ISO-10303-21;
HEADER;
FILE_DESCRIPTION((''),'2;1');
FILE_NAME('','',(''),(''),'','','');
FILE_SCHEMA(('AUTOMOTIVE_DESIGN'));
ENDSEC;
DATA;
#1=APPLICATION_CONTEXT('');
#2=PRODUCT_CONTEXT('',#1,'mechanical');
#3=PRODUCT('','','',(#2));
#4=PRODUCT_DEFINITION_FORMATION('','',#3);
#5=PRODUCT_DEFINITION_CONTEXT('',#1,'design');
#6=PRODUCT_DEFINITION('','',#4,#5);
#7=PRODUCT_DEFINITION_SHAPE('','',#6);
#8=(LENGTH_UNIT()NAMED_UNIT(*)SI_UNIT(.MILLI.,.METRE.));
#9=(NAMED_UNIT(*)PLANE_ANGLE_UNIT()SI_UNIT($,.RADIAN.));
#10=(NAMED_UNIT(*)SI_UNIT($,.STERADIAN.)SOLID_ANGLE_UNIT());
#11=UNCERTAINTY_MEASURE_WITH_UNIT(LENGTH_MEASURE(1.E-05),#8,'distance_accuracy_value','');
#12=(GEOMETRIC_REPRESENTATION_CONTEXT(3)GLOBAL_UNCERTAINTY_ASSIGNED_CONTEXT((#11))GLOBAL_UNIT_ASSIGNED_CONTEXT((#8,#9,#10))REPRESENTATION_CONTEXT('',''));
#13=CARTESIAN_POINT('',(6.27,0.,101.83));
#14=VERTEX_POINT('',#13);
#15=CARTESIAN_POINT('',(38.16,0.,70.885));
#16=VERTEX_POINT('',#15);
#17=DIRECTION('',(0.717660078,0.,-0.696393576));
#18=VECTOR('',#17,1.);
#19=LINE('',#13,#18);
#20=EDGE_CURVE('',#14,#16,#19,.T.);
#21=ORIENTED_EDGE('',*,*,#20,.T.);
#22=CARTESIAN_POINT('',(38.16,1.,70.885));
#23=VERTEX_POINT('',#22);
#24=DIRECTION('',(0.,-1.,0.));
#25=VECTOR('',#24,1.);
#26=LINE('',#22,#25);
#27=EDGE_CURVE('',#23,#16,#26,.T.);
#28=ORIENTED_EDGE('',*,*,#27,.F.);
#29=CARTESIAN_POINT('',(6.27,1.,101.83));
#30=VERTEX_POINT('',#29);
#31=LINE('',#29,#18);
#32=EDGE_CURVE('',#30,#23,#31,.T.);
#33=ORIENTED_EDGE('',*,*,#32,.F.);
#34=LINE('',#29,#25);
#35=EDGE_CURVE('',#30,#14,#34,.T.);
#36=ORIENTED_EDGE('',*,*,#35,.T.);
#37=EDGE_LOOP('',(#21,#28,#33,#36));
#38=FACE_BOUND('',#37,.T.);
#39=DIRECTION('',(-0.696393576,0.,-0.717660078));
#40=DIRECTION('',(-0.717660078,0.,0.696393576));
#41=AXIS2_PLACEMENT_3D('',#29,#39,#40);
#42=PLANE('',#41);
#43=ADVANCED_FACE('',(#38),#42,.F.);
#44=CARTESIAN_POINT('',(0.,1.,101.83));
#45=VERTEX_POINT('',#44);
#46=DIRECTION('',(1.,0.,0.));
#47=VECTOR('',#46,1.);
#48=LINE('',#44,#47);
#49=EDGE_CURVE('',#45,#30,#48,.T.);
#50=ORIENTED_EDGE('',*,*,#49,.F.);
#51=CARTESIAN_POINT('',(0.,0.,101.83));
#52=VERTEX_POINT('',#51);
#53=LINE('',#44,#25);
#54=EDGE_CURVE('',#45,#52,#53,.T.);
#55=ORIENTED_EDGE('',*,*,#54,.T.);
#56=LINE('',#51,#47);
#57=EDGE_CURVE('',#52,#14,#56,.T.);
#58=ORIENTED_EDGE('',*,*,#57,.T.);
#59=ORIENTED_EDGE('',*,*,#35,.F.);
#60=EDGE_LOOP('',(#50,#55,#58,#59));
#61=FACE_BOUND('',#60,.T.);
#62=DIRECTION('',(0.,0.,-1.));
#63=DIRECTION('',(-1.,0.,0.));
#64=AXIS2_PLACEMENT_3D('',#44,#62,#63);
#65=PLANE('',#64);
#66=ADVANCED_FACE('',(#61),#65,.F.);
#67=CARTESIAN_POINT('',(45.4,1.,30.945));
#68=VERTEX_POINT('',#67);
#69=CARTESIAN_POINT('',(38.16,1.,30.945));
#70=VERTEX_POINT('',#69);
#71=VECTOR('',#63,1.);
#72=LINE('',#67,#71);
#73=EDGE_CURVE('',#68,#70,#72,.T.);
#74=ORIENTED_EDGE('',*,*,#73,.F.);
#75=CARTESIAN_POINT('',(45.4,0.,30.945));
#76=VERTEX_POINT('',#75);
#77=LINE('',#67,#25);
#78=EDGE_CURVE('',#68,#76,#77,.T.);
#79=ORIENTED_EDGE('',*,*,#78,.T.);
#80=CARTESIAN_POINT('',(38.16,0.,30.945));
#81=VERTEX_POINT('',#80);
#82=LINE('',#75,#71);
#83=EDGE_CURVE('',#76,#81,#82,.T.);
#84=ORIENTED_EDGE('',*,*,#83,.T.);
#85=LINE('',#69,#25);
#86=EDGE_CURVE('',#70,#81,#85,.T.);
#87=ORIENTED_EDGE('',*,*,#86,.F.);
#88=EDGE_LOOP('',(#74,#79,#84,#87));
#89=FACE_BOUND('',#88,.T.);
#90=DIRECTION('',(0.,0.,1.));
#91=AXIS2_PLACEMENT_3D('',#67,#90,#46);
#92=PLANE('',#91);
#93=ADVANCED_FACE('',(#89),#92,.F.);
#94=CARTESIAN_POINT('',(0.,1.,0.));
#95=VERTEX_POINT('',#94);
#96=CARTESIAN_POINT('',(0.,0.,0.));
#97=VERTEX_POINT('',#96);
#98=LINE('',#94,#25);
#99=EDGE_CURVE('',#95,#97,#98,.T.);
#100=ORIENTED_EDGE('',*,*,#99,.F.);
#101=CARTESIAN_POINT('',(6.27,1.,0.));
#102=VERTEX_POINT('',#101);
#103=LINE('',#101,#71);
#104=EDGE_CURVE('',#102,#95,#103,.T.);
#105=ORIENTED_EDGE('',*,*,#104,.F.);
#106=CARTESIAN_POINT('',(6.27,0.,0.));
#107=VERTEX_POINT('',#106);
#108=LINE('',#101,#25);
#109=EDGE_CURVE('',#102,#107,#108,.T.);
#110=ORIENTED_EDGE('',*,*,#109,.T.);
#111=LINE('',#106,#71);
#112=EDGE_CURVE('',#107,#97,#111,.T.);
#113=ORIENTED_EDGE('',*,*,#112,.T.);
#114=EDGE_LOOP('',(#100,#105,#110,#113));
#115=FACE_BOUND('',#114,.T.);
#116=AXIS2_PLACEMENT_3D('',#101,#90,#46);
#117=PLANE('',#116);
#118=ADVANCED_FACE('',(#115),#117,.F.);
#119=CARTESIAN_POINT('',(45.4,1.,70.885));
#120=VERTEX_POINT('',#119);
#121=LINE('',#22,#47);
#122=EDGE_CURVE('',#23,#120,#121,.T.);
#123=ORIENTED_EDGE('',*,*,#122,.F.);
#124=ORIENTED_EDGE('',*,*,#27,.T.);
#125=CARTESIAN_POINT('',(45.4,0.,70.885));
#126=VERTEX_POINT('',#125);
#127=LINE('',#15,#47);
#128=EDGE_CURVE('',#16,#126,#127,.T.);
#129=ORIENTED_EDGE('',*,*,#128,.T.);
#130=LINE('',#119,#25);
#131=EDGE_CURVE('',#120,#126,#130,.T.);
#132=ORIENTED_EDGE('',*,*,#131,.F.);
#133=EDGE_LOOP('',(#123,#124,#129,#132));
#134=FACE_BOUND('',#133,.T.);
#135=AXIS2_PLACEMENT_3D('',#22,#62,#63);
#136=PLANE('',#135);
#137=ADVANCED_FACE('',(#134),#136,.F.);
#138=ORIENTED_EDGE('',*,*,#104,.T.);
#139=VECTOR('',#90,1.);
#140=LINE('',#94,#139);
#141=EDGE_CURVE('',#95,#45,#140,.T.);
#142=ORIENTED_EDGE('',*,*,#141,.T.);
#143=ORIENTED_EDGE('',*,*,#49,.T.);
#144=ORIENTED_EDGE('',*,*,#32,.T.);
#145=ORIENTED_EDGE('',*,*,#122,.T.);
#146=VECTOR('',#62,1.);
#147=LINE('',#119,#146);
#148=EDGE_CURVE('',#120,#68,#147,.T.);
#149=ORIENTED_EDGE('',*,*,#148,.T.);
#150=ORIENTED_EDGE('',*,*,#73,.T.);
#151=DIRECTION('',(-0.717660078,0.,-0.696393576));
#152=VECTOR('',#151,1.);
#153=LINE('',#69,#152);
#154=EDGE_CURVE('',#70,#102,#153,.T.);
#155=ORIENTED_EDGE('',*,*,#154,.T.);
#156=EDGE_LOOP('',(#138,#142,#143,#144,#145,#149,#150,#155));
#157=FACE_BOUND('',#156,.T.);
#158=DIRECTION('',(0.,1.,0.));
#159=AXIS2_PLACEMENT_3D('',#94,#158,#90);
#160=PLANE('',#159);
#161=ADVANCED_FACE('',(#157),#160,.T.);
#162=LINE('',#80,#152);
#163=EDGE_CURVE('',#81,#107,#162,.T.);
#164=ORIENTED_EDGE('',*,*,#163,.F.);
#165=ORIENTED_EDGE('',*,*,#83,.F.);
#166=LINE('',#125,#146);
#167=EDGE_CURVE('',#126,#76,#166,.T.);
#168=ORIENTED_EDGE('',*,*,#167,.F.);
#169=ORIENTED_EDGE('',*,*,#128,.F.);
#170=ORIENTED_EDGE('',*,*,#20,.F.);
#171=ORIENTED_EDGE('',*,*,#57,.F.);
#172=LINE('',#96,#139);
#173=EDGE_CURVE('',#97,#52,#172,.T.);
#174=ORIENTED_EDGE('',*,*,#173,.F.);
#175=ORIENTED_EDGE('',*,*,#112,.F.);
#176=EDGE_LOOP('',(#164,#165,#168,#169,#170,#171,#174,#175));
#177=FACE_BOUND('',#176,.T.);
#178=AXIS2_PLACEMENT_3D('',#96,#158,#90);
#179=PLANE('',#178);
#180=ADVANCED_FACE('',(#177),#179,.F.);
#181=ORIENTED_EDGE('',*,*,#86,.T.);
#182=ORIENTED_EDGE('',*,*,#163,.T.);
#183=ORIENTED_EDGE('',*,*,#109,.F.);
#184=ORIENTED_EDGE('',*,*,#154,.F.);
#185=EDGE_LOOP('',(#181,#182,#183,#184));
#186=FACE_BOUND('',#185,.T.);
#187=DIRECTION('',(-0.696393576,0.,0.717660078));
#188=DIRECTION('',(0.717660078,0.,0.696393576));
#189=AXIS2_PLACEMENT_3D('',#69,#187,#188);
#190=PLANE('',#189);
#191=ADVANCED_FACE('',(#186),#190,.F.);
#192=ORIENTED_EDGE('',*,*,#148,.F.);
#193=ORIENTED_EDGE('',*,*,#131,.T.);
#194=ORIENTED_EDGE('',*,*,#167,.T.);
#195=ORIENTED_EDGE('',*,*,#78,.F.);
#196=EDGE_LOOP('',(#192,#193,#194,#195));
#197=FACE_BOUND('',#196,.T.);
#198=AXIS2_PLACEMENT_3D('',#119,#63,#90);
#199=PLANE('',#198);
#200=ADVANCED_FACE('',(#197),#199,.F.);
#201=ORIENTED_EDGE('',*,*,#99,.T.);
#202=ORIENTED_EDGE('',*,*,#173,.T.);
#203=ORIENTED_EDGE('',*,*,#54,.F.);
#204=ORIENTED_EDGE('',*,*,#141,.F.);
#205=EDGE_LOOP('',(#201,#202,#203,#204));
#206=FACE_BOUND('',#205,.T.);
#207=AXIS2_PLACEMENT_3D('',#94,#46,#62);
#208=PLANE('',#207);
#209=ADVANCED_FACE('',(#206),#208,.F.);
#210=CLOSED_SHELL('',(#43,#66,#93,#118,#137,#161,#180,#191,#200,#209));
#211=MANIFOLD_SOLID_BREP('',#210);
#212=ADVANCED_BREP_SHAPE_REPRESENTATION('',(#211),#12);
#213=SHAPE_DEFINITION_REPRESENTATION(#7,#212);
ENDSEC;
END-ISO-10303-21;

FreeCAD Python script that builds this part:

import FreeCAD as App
import Part
import Sketcher

V = App.Vector
Q = App.Units.Quantity


def add_polygon(sketch, points):
    """Adds a closed chain of lines whose ends are joined by coincident constraints."""
    first, n = sketch.GeometryCount, len(points)
    for a, b in zip(points, points[1:] + points[:1]):
        sketch.addGeometry(Part.LineSegment(App.Vector(*a, 0), App.Vector(*b, 0)), False)
    for i in range(n):
        sketch.addConstraint(Sketcher.Constraint("Coincident", first + i, 2, first + (i + 1) % n, 1))

doc = App.newDocument("Part")
body = doc.addObject("PartDesign::Body", "Body")

# Sketch on XZ plane
sketch1 = body.newObject("Sketcher::SketchObject", "Sketch")
sketch1.AttachmentSupport = (doc.getObject("XZ_Plane"), [""])
sketch1.MapMode = "FlatFace"
add_polygon(sketch1, [(0, 0), (0, 102), (6, 102), (38, 71), (45, 71), (45, 31), (38, 31), (6, 0)])  # lines 0-7
sketch1.addConstraint(Sketcher.Constraint("Vertical", 0))
sketch1.addConstraint(Sketcher.Constraint("Horizontal", 1))
sketch1.addConstraint(Sketcher.Constraint("Horizontal", 3))
sketch1.addConstraint(Sketcher.Constraint("Vertical", 4))
sketch1.addConstraint(Sketcher.Constraint("Horizontal", 5))
sketch1.addConstraint(Sketcher.Constraint("Horizontal", 7))
sketch1.addConstraint(Sketcher.Constraint("Coincident", 7, 2, -1, 1))
sketch1.addConstraint(Sketcher.Constraint("Vertical", 2, 2, 5, 2))
sketch1.addConstraint(Sketcher.Constraint("Vertical", 1, 2, 6, 2))
sketch1.addConstraint(Sketcher.Constraint("Equal", 2, 6))
sketch1.addConstraint(Sketcher.Constraint("DistanceX", 1, 1, 1, 2, Q("6.27 mm")))
sketch1.addConstraint(Sketcher.Constraint("DistanceX", 3, 1, 3, 2, Q("7.24 mm")))
sketch1.addConstraint(Sketcher.Constraint("DistanceY", 0, 1, 0, 2, Q("101.83 mm")))
sketch1.addConstraint(Sketcher.Constraint("DistanceY", 4, 2, 4, 1, Q("39.94 mm")))
sketch1.addConstraint(Sketcher.Constraint("DistanceX", -1, 1, 3, 2, Q("45.4 mm")))
pad1 = body.newObject("PartDesign::Pad", "Pad")
pad1.Profile = sketch1
pad1.Length = 1
pad1.Reversed = True

doc.recompute()
